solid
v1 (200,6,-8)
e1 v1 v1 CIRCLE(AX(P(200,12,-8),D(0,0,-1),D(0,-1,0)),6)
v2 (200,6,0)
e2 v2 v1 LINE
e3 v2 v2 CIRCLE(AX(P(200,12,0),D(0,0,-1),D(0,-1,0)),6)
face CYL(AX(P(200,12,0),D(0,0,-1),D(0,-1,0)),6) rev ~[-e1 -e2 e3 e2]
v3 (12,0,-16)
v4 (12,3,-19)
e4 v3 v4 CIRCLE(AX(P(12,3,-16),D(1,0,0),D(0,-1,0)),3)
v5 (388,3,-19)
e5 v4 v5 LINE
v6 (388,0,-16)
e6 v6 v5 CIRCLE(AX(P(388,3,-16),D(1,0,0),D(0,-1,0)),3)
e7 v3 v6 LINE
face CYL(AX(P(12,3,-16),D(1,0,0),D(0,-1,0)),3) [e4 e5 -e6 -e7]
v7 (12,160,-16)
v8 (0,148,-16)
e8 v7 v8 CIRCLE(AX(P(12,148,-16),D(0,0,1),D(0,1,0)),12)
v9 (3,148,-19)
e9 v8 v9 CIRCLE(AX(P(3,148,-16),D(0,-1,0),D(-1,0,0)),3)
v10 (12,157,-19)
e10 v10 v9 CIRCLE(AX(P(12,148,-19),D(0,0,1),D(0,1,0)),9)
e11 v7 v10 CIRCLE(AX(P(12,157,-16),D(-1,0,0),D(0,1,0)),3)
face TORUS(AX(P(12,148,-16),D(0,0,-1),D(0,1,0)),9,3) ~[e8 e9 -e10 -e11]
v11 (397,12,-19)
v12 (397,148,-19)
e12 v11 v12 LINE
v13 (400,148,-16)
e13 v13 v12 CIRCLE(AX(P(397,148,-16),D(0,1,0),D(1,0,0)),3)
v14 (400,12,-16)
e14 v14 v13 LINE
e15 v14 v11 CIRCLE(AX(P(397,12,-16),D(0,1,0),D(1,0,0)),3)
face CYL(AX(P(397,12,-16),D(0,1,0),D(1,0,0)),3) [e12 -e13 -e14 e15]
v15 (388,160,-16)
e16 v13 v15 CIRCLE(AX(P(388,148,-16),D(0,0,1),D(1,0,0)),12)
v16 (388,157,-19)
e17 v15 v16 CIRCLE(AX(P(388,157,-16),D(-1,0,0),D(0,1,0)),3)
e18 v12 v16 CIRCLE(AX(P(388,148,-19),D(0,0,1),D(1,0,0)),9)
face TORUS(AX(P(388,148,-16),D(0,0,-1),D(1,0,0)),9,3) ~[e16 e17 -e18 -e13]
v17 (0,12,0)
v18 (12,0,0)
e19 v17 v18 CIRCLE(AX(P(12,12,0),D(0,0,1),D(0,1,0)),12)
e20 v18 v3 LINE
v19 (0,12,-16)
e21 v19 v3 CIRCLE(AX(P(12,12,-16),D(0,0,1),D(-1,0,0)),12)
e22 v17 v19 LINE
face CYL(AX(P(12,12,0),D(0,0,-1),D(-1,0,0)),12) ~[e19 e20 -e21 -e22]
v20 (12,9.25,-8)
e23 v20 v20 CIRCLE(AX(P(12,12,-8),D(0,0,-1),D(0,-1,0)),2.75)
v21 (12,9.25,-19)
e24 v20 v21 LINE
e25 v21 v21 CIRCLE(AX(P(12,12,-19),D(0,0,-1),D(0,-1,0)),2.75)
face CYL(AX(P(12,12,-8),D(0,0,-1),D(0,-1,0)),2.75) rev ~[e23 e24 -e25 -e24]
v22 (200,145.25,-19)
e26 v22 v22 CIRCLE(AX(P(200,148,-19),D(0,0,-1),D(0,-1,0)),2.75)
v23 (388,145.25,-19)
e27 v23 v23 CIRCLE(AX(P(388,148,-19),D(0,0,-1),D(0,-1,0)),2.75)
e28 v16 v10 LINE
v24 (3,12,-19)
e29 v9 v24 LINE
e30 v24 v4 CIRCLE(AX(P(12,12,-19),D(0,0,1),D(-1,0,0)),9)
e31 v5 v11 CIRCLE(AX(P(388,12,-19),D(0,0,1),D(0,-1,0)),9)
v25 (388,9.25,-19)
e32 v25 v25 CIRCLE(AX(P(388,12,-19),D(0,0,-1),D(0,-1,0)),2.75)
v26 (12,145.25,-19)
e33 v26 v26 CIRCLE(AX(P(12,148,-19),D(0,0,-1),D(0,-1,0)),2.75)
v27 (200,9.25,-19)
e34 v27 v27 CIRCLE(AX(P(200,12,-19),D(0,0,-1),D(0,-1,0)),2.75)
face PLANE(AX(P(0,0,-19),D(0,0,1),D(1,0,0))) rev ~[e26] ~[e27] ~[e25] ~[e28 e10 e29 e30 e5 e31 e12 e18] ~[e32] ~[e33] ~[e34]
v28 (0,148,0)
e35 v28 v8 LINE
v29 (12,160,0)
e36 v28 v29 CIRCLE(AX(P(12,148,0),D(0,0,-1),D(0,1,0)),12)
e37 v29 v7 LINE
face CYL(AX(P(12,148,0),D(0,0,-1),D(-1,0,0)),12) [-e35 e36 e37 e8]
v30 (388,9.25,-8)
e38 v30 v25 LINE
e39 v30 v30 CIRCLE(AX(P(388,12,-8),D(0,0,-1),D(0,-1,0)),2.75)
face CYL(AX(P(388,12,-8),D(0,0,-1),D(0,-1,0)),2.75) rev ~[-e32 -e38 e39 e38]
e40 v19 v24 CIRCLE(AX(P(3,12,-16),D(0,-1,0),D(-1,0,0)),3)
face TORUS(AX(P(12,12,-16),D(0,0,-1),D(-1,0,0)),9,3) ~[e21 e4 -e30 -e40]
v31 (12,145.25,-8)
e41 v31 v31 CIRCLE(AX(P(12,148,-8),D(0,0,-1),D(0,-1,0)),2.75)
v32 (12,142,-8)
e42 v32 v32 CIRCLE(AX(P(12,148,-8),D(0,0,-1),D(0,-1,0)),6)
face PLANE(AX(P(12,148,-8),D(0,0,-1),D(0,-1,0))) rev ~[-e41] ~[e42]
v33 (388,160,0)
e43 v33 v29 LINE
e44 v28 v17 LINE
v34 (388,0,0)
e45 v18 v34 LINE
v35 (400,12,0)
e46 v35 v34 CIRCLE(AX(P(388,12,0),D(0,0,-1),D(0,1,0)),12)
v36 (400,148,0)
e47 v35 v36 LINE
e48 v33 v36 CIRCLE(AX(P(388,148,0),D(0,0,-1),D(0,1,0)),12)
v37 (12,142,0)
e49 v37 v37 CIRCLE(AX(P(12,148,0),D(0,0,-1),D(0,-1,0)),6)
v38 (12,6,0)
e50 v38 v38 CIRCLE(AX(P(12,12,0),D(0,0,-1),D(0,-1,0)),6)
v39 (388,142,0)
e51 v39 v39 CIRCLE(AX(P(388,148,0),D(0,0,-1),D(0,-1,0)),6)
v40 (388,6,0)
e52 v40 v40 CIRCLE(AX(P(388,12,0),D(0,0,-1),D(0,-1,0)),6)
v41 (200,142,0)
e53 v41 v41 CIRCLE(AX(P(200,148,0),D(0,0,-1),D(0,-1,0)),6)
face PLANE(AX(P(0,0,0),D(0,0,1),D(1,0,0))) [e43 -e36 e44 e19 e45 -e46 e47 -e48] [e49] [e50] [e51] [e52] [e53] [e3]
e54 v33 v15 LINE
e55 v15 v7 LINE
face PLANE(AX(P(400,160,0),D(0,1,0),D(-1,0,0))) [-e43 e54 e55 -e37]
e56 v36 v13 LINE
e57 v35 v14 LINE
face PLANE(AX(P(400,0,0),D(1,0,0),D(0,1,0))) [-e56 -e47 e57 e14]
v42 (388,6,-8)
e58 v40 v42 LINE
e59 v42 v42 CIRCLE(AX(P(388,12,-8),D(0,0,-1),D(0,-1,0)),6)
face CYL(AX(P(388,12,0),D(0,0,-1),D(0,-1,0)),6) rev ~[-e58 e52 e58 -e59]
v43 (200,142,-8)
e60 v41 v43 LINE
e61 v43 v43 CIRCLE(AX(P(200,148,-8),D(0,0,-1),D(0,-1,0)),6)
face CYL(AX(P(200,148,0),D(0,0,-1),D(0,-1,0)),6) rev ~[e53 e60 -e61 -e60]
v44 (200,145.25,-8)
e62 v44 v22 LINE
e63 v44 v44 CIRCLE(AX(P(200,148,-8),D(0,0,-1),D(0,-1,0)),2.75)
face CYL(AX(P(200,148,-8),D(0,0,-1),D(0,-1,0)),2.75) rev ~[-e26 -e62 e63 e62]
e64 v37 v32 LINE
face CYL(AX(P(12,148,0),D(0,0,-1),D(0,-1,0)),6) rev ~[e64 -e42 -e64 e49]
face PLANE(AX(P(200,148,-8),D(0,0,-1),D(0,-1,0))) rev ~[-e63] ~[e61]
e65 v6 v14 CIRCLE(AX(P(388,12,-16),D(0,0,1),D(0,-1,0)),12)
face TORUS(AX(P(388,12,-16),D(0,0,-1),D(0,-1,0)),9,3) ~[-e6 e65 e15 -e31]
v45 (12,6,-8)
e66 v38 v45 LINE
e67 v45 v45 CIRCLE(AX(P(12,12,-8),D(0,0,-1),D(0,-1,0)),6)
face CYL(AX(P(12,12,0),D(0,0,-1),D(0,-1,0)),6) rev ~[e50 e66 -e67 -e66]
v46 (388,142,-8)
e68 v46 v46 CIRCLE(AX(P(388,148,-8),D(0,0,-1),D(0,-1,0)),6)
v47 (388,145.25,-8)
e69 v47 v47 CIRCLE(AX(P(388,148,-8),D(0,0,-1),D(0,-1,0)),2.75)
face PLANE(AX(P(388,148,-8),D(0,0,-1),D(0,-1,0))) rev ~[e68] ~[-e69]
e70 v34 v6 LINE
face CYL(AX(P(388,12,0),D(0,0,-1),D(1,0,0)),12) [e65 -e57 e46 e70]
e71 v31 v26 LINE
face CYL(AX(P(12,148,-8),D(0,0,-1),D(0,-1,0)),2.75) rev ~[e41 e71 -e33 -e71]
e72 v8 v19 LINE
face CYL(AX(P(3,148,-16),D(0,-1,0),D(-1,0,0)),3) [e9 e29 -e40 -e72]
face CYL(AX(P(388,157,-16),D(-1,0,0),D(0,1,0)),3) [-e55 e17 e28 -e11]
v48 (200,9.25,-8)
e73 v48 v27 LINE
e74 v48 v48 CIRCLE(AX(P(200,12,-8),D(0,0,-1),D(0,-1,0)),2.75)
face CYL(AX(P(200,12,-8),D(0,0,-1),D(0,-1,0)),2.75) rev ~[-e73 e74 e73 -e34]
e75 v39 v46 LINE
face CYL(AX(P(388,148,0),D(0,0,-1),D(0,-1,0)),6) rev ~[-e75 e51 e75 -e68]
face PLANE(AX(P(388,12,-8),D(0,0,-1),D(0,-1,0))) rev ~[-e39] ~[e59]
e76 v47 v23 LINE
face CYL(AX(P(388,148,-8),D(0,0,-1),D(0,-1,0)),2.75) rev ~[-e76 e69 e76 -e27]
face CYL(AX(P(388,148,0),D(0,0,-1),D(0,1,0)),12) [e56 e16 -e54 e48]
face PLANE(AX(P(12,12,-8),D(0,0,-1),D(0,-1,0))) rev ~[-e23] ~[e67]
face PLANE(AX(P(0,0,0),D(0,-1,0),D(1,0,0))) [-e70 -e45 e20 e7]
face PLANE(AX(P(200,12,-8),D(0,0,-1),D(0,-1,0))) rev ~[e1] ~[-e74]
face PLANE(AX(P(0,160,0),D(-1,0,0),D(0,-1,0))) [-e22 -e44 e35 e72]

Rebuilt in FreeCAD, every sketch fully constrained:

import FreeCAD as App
import Part
import Sketcher


def edges_at(feature, points):
    """Names of the edges that pass closest to the given points."""
    edges = feature.Shape.Edges
    near = lambda p: min(range(len(edges)), key=lambda i: edges[i].distToShape(Part.Vertex(*p))[0])
    return sorted({f"Edge{near(p) + 1}" for p in points})


def add_polygon(sketch, points):
    """Adds a closed chain of lines whose ends are joined by coincident constraints."""
    first, n = sketch.GeometryCount, len(points)
    for a, b in zip(points, points[1:] + points[:1]):
        sketch.addGeometry(Part.LineSegment(App.Vector(*a, 0), App.Vector(*b, 0)), False)
    for i in range(n):
        sketch.addConstraint(Sketcher.Constraint("Coincident", first + i, 2, first + (i + 1) % n, 1))

doc = App.newDocument("Part")
params = doc.addObject("Spreadsheet::Sheet", "Params")
for row, (alias, value) in enumerate([
    ("sketch1_width", "400 mm"),
    ("sketch1_height", "160 mm"),
    ("pad1_length", "19 mm"),
    ("fillet_radius", "12 mm"),
    ("fillet2_radius", "3 mm"),
    ("sketch2_diameter", "5.5 mm"),
    ("hole_diameter", "5.5 mm"),
    ("hole_cbore_diameter", "12 mm"),
    ("hole_cbore_depth", "8 mm"),
], start=1):
    params.set(f"A{row}", alias)
    params.set(f"B{row}", "=" + value)
    params.setAlias(f"B{row}", alias)

body = doc.addObject("PartDesign::Body", "Body")

# Sketch on XY plane
sketch1 = body.newObject("Sketcher::SketchObject", "Sketch")
sketch1.AttachmentSupport = (doc.getObject("XY_Plane"), [""])
sketch1.MapMode = "FlatFace"
add_polygon(sketch1, [(0, 160), (0, 0), (400, 0), (400, 160)])  # lines 0-3
sketch1.addConstraint(Sketcher.Constraint("Vertical", 0))
sketch1.addConstraint(Sketcher.Constraint("Horizontal", 1))
sketch1.addConstraint(Sketcher.Constraint("Vertical", 2))
sketch1.addConstraint(Sketcher.Constraint("Horizontal", 3))
sketch1.addConstraint(Sketcher.Constraint("Coincident", 0, 2, -1, 1))
sketch1.addConstraint(Sketcher.Constraint("DistanceX", 1, 1, 1, 2, 400.0))
sketch1.addConstraint(Sketcher.Constraint("DistanceY", 0, 2, 0, 1, 160.0))
sketch1.setExpression("Constraints[9]", "Params.sketch1_width")
sketch1.setExpression("Constraints[10]", "Params.sketch1_height")
pad1 = body.newObject("PartDesign::Pad", "Pad")
pad1.Profile = sketch1
pad1.setExpression("Length", "Params.pad1_length")
pad1.Reversed = True
doc.recompute()

fillet = body.newObject("PartDesign::Fillet", "Fillet")
fillet.Base = (pad1, edges_at(pad1, [
    (400, 160, -9.5),
    (400, 0, -9.5),
    (0, 0, -9.5),
    (0, 160, -9.5),
]))
fillet.setExpression("Radius", "Params.fillet_radius")
doc.recompute()

fillet2 = body.newObject("PartDesign::Fillet", "Fillet001")
fillet2.Base = (fillet, edges_at(fillet, [
    (3.515, 3.515, -19),
    (0, 80, -19),
    (3.515, 156.485, -19),
    (200, 160, -19),
    (396.485, 156.485, -19),
    (400, 80, -19),
    (396.485, 3.515, -19),
    (200, 0, -19),
]))
fillet2.setExpression("Radius", "Params.fillet2_radius")

# Sketch on XY plane
sketch2 = body.newObject("Sketcher::SketchObject", "Sketch001")
sketch2.AttachmentSupport = (doc.getObject("XY_Plane"), [""])
sketch2.MapMode = "FlatFace"
sketch2.addGeometry(Part.Circle(App.Vector(12, 148, 0), App.Vector(0, 0, 1), 2.8), False)
sketch2.addGeometry(Part.Circle(App.Vector(200, 148, 0), App.Vector(0, 0, 1), 2.8), False)
sketch2.addGeometry(Part.Circle(App.Vector(388, 148, 0), App.Vector(0, 0, 1), 2.8), False)
sketch2.addGeometry(Part.Circle(App.Vector(388, 12, 0), App.Vector(0, 0, 1), 2.8), False)
sketch2.addGeometry(Part.Circle(App.Vector(200, 12, 0), App.Vector(0, 0, 1), 2.8), False)
sketch2.addGeometry(Part.Circle(App.Vector(12, 12, 0), App.Vector(0, 0, 1), 2.8), False)
sketch2.addConstraint(Sketcher.Constraint("Equal", 0, 1))
sketch2.addConstraint(Sketcher.Constraint("Equal", 1, 2))
sketch2.addConstraint(Sketcher.Constraint("Equal", 2, 3))
sketch2.addConstraint(Sketcher.Constraint("Equal", 3, 4))
sketch2.addConstraint(Sketcher.Constraint("Equal", 4, 5))
sketch2.addConstraint(Sketcher.Constraint("Horizontal", 0, 3, 1, 3))
sketch2.addConstraint(Sketcher.Constraint("Horizontal", 1, 3, 2, 3))
sketch2.addConstraint(Sketcher.Constraint("Horizontal", 3, 3, 4, 3))
sketch2.addConstraint(Sketcher.Constraint("Horizontal", 4, 3, 5, 3))
sketch2.addConstraint(Sketcher.Constraint("Vertical", 2, 3, 3, 3))
sketch2.addConstraint(Sketcher.Constraint("Vertical", 1, 3, 4, 3))
sketch2.addConstraint(Sketcher.Constraint("Vertical", 0, 3, 5, 3))
sketch2.addConstraint(Sketcher.Constraint("Diameter", 0, 5.5))
sketch2.addConstraint(Sketcher.Constraint("DistanceX", -1, 1, 0, 3, 12.0))
sketch2.addConstraint(Sketcher.Constraint("DistanceY", -1, 1, 0, 3, 148.0))
sketch2.addConstraint(Sketcher.Constraint("DistanceX", -1, 1, 1, 3, 200.0))
sketch2.addConstraint(Sketcher.Constraint("DistanceX", -1, 1, 2, 3, 388.0))
sketch2.addConstraint(Sketcher.Constraint("DistanceY", -1, 1, 3, 3, 12.0))
sketch2.setExpression("Constraints[12]", "Params.sketch2_diameter")
doc.recompute()
hole = body.newObject("PartDesign::Hole", "Hole")
hole.Profile = sketch2
hole.ThreadType = "None"
hole.setExpression("Diameter", "Params.hole_diameter")
hole.DepthType = "ThroughAll"
hole.HoleCutType = "Counterbore"
hole.setExpression("HoleCutDiameter", "Params.hole_cbore_diameter")
hole.setExpression("HoleCutDepth", "Params.hole_cbore_depth")

doc.recompute()
